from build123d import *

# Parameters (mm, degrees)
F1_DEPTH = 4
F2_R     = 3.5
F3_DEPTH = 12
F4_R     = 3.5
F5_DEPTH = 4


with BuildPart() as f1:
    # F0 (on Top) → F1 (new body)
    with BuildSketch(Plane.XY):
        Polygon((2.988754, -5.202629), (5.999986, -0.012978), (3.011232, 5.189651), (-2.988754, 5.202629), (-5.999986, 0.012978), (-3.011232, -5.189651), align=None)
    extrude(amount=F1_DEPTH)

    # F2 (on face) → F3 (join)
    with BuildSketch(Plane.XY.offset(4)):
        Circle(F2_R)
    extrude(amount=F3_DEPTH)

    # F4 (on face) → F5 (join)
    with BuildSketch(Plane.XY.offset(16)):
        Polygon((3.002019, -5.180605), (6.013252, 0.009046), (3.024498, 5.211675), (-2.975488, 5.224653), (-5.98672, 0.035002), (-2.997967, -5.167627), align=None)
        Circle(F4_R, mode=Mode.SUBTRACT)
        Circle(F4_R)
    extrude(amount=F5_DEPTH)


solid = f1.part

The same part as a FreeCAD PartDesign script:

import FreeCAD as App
import Part
import Sketcher

V = App.Vector

doc = App.newDocument("Part")
body = doc.addObject("PartDesign::Body", "Body")

# Sketch on XY plane
sketch1 = body.newObject("Sketcher::SketchObject", "Sketch")
sketch1.AttachmentSupport = (doc.getObject("XY_Plane"), [""])
sketch1.MapMode = "FlatFace"
sketch1.addGeometry([
    Part.LineSegment(V(3, -5, 0), V(6, 0, 0)),  # 0
    Part.LineSegment(V(6, 0, 0), V(3, 5, 0)),  # 1
    Part.LineSegment(V(3, 5, 0), V(-3, 5, 0)),  # 2
    Part.LineSegment(V(-3, 5, 0), V(-6, 0, 0)),  # 3
    Part.LineSegment(V(-6, 0, 0), V(-3, -5, 0)),  # 4
    Part.LineSegment(V(-3, -5, 0), V(3, -5, 0)),  # 5
], False)
sketch1.addConstraint([
    Sketcher.Constraint("Coincident", 0, 2, 1, 1),
    Sketcher.Constraint("Coincident", 1, 2, 2, 1),
    Sketcher.Constraint("Coincident", 2, 2, 3, 1),
    Sketcher.Constraint("Coincident", 3, 2, 4, 1),
    Sketcher.Constraint("Coincident", 4, 2, 5, 1),
    Sketcher.Constraint("Coincident", 5, 2, 0, 1),
    Sketcher.Constraint("Symmetric", 0, 2, 3, 2, -1, 1),
    Sketcher.Constraint("Symmetric", 1, 2, 4, 2, -1, 1),
    Sketcher.Constraint("Symmetric", 2, 2, 5, 2, -1, 1),
    Sketcher.Constraint("Equal", 0, 1),
    Sketcher.Constraint("Equal", 1, 2),
    Sketcher.Constraint("Distance", 0, 6.0),
    Sketcher.Constraint("DistanceY", 4, 2, 1, 2, 10.379302),
    Sketcher.Constraint("DistanceY", -1, 1, 2, 2, 5.202629),
    Sketcher.Constraint("DistanceY", 0, 2, 1, 2, 5.202629),
])
pad1 = body.newObject("PartDesign::Pad", "Pad")
pad1.Profile = sketch1
pad1.Length = 4

# Sketch on XY plane
sketch2 = body.newObject("Sketcher::SketchObject", "Sketch001")
sketch2.AttachmentSupport = (doc.getObject("XY_Plane"), [""])
sketch2.MapMode = "FlatFace"
sketch2.AttachmentOffset = App.Placement(V(0, 0, 4), App.Rotation())
sketch2.addGeometry(Part.Circle(V(0, 0, 0), V(0, 0, 1), 3.5), False)
sketch2.addConstraint([
    Sketcher.Constraint("Coincident", 0, 3, -1, 1),
    Sketcher.Constraint("Diameter", 0, 7.0),
])
pad2 = body.newObject("PartDesign::Pad", "Pad001")
pad2.Profile = sketch2
pad2.Length = 12

# Sketch on XY plane
sketch3 = body.newObject("Sketcher::SketchObject", "Sketch002")
sketch3.AttachmentSupport = (doc.getObject("XY_Plane"), [""])
sketch3.MapMode = "FlatFace"
sketch3.AttachmentOffset = App.Placement(V(0, 0, 16), App.Rotation())
sketch3.addGeometry([
    Part.LineSegment(V(3, -5, 0), V(6, 0, 0)),  # 0
    Part.LineSegment(V(6, 0, 0), V(3, 5, 0)),  # 1
    Part.LineSegment(V(3, 5, 0), V(-3, 5, 0)),  # 2
    Part.LineSegment(V(-3, 5, 0), V(-6, 0, 0)),  # 3
    Part.LineSegment(V(-6, 0, 0), V(-3, -5, 0)),  # 4
    Part.LineSegment(V(-3, -5, 0), V(3, -5, 0)),  # 5
], False)
sketch3.addConstraint([
    Sketcher.Constraint("Coincident", 0, 2, 1, 1),
    Sketcher.Constraint("Coincident", 1, 2, 2, 1),
    Sketcher.Constraint("Coincident", 2, 2, 3, 1),
    Sketcher.Constraint("Coincident", 3, 2, 4, 1),
    Sketcher.Constraint("Coincident", 4, 2, 5, 1),
    Sketcher.Constraint("Coincident", 5, 2, 0, 1),
    Sketcher.Constraint("Parallel", 0, 3),
    Sketcher.Constraint("Parallel", 1, 4),
    Sketcher.Constraint("Parallel", 2, 5),
    Sketcher.Constraint("Equal", 0, 1),
    Sketcher.Constraint("Equal", 1, 2),
    Sketcher.Constraint("Equal", 2, 3),
    Sketcher.Constraint("Distance", 0, 6.0),
    Sketcher.Constraint("DistanceY", -1, 1, 3, 2, 0.035002),
    Sketcher.Constraint("DistanceY", 4, 2, 1, 2, 10.379302),
    Sketcher.Constraint("DistanceX", -1, 1, 0, 2, 6.013252),
    Sketcher.Constraint("DistanceX", 3, 2, -1, 1, 5.98672),
    Sketcher.Constraint("DistanceX", -1, 1, 5, 2, 3.002019),
])
pad3 = body.newObject("PartDesign::Pad", "Pad002")
pad3.Profile = sketch3
pad3.Length = 4

doc.recompute()
